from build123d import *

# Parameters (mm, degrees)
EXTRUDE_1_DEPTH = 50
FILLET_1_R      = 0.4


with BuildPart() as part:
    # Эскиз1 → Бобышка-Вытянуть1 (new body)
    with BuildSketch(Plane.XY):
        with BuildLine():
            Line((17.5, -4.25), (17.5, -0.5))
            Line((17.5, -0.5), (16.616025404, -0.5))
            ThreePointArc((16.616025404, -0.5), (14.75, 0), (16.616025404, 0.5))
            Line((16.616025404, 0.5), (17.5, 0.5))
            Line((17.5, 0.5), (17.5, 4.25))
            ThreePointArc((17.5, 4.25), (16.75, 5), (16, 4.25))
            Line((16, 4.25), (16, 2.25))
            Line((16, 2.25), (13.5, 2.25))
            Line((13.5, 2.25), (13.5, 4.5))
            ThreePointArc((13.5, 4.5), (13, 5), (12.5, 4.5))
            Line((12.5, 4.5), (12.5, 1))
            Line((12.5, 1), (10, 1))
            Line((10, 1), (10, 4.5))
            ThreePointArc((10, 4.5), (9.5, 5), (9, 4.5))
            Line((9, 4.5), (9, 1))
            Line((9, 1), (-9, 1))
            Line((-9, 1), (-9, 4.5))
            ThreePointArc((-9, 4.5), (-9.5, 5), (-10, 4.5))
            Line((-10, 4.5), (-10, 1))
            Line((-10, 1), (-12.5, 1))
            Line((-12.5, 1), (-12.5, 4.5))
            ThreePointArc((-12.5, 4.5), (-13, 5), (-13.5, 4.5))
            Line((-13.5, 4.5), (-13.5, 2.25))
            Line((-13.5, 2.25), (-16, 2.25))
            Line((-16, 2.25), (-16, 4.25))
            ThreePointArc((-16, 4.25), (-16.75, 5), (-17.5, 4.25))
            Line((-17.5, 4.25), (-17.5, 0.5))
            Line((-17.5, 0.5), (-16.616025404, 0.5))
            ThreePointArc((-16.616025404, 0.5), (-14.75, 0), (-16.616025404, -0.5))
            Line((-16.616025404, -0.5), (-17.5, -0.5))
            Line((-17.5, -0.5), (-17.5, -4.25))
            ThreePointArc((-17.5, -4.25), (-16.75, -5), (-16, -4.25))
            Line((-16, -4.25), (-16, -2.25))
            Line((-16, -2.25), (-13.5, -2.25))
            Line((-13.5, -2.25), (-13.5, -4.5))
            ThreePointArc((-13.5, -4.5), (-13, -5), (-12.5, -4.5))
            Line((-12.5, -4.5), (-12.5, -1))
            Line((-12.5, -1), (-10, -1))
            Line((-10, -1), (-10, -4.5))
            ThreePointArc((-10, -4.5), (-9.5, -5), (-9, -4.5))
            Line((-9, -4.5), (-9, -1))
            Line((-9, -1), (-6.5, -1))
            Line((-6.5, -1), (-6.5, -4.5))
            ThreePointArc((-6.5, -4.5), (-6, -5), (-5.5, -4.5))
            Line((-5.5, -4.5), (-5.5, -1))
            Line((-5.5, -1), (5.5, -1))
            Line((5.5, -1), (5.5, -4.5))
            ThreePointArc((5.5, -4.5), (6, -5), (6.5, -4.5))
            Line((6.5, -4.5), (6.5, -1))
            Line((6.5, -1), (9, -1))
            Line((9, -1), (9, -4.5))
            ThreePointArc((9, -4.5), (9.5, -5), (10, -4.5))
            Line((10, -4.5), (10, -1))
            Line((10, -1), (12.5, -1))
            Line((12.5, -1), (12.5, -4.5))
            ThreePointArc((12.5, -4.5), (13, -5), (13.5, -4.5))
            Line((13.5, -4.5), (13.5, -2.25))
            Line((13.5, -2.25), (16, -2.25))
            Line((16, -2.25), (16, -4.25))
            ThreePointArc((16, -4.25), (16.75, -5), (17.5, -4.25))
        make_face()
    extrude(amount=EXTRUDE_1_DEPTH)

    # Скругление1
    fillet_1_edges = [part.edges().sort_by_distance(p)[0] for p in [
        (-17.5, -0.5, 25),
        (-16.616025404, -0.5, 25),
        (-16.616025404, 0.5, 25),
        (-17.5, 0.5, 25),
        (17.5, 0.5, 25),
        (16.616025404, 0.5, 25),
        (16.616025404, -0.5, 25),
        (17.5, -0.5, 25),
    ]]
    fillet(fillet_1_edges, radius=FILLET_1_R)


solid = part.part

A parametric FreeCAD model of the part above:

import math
import FreeCAD as App
import Part
import Sketcher


def edges_at(feature, points):
    """Names of the edges that pass closest to the given points."""
    edges = feature.Shape.Edges
    near = lambda p: min(range(len(edges)), key=lambda i: edges[i].distToShape(Part.Vertex(*p))[0])
    return sorted({f"Edge{near(p) + 1}" for p in points})

doc = App.newDocument("Part")
body = doc.addObject("PartDesign::Body", "Body")

# Sketch on XY plane
sketch1 = body.newObject("Sketcher::SketchObject", "Sketch")
sketch1.AttachmentSupport = (doc.getObject("XY_Plane"), [""])
sketch1.MapMode = "FlatFace"
sketch1.addGeometry([
    Part.LineSegment(App.Vector(17.5, -4.2, 0), App.Vector(17.5, -0.5, 0)),  # 0
    Part.LineSegment(App.Vector(17.5, -0.5, 0), App.Vector(16.6, -0.5, 0)),  # 1
    Part.ArcOfCircle(Part.Circle(App.Vector(15.8, 0, 0), App.Vector(0, 0, 1), 1), math.radians(30), math.radians(330)),  # 2
    Part.LineSegment(App.Vector(16.6, 0.5, 0), App.Vector(17.5, 0.5, 0)),  # 3
    Part.LineSegment(App.Vector(17.5, 0.5, 0), App.Vector(17.5, 4.2, 0)),  # 4
    Part.ArcOfCircle(Part.Circle(App.Vector(16.8, 4.2, 0), App.Vector(0, 0, 1), 0.8), math.radians(0), math.radians(180)),  # 5
    Part.LineSegment(App.Vector(16, 4.2, 0), App.Vector(16, 2.2, 0)),  # 6
    Part.LineSegment(App.Vector(16, 2.2, 0), App.Vector(13.5, 2.2, 0)),  # 7
    Part.LineSegment(App.Vector(13.5, 2.2, 0), App.Vector(13.5, 4.5, 0)),  # 8
    Part.ArcOfCircle(Part.Circle(App.Vector(13, 4.5, 0), App.Vector(0, 0, 1), 0.5), math.radians(0), math.radians(180)),  # 9
    Part.LineSegment(App.Vector(12.5, 4.5, 0), App.Vector(12.5, 1, 0)),  # 10
    Part.LineSegment(App.Vector(12.5, 1, 0), App.Vector(10, 1, 0)),  # 11
    Part.LineSegment(App.Vector(10, 1, 0), App.Vector(10, 4.5, 0)),  # 12
    Part.ArcOfCircle(Part.Circle(App.Vector(9.5, 4.5, 0), App.Vector(0, 0, 1), 0.5), math.radians(0), math.radians(180)),  # 13
    Part.LineSegment(App.Vector(9, 4.5, 0), App.Vector(9, 1, 0)),  # 14
    Part.LineSegment(App.Vector(9, 1, 0), App.Vector(-9, 1, 0)),  # 15
    Part.LineSegment(App.Vector(-9, 1, 0), App.Vector(-9, 4.5, 0)),  # 16
    Part.ArcOfCircle(Part.Circle(App.Vector(-9.5, 4.5, 0), App.Vector(0, 0, 1), 0.5), math.radians(0), math.radians(180)),  # 17
    Part.LineSegment(App.Vector(-10, 4.5, 0), App.Vector(-10, 1, 0)),  # 18
    Part.LineSegment(App.Vector(-10, 1, 0), App.Vector(-12.5, 1, 0)),  # 19
    Part.LineSegment(App.Vector(-12.5, 1, 0), App.Vector(-12.5, 4.5, 0)),  # 20
    Part.ArcOfCircle(Part.Circle(App.Vector(-13, 4.5, 0), App.Vector(0, 0, 1), 0.5), math.radians(0), math.radians(180)),  # 21
    Part.LineSegment(App.Vector(-13.5, 4.5, 0), App.Vector(-13.5, 2.2, 0)),  # 22
    Part.LineSegment(App.Vector(-13.5, 2.2, 0), App.Vector(-16, 2.2, 0)),  # 23
    Part.LineSegment(App.Vector(-16, 2.2, 0), App.Vector(-16, 4.2, 0)),  # 24
    Part.ArcOfCircle(Part.Circle(App.Vector(-16.8, 4.2, 0), App.Vector(0, 0, 1), 0.8), math.radians(0), math.radians(180)),  # 25
    Part.LineSegment(App.Vector(-17.5, 4.2, 0), App.Vector(-17.5, 0.5, 0)),  # 26
    Part.LineSegment(App.Vector(-17.5, 0.5, 0), App.Vector(-16.6, 0.5, 0)),  # 27
    Part.ArcOfCircle(Part.Circle(App.Vector(-15.8, 0, 0), App.Vector(0, 0, 1), 1), math.radians(-150), math.radians(150)),  # 28
    Part.LineSegment(App.Vector(-16.6, -0.5, 0), App.Vector(-17.5, -0.5, 0)),  # 29
    Part.LineSegment(App.Vector(-17.5, -0.5, 0), App.Vector(-17.5, -4.2, 0)),  # 30
    Part.ArcOfCircle(Part.Circle(App.Vector(-16.8, -4.2, 0), App.Vector(0, 0, 1), 0.8), math.radians(180), math.radians(360)),  # 31
    Part.LineSegment(App.Vector(-16, -4.2, 0), App.Vector(-16, -2.2, 0)),  # 32
    Part.LineSegment(App.Vector(-16, -2.2, 0), App.Vector(-13.5, -2.2, 0)),  # 33
    Part.LineSegment(App.Vector(-13.5, -2.2, 0), App.Vector(-13.5, -4.5, 0)),  # 34
    Part.ArcOfCircle(Part.Circle(App.Vector(-13, -4.5, 0), App.Vector(0, 0, 1), 0.5), math.radians(180), math.radians(360)),  # 35
    Part.LineSegment(App.Vector(-12.5, -4.5, 0), App.Vector(-12.5, -1, 0)),  # 36
    Part.LineSegment(App.Vector(-12.5, -1, 0), App.Vector(-10, -1, 0)),  # 37
    Part.LineSegment(App.Vector(-10, -1, 0), App.Vector(-10, -4.5, 0)),  # 38
    Part.ArcOfCircle(Part.Circle(App.Vector(-9.5, -4.5, 0), App.Vector(0, 0, 1), 0.5), math.radians(180), math.radians(360)),  # 39
    Part.LineSegment(App.Vector(-9, -4.5, 0), App.Vector(-9, -1, 0)),  # 40
    Part.LineSegment(App.Vector(-9, -1, 0), App.Vector(-6.5, -1, 0)),  # 41
    Part.LineSegment(App.Vector(-6.5, -1, 0), App.Vector(-6.5, -4.5, 0)),  # 42
    Part.ArcOfCircle(Part.Circle(App.Vector(-6, -4.5, 0), App.Vector(0, 0, 1), 0.5), math.radians(180), math.radians(360)),  # 43
    Part.LineSegment(App.Vector(-5.5, -4.5, 0), App.Vector(-5.5, -1, 0)),  # 44
    Part.LineSegment(App.Vector(-5.5, -1, 0), App.Vector(5.5, -1, 0)),  # 45
    Part.LineSegment(App.Vector(5.5, -1, 0), App.Vector(5.5, -4.5, 0)),  # 46
    Part.ArcOfCircle(Part.Circle(App.Vector(6, -4.5, 0), App.Vector(0, 0, 1), 0.5), math.radians(180), math.radians(360)),  # 47
    Part.LineSegment(App.Vector(6.5, -4.5, 0), App.Vector(6.5, -1, 0)),  # 48
    Part.LineSegment(App.Vector(6.5, -1, 0), App.Vector(9, -1, 0)),  # 49
    Part.LineSegment(App.Vector(9, -1, 0), App.Vector(9, -4.5, 0)),  # 50
    Part.ArcOfCircle(Part.Circle(App.Vector(9.5, -4.5, 0), App.Vector(0, 0, 1), 0.5), math.radians(180), math.radians(360)),  # 51
    Part.LineSegment(App.Vector(10, -4.5, 0), App.Vector(10, -1, 0)),  # 52
    Part.LineSegment(App.Vector(10, -1, 0), App.Vector(12.5, -1, 0)),  # 53
    Part.LineSegment(App.Vector(12.5, -1, 0), App.Vector(12.5, -4.5, 0)),  # 54
    Part.ArcOfCircle(Part.Circle(App.Vector(13, -4.5, 0), App.Vector(0, 0, 1), 0.5), math.radians(180), math.radians(360)),  # 55
    Part.LineSegment(App.Vector(13.5, -4.5, 0), App.Vector(13.5, -2.2, 0)),  # 56
    Part.LineSegment(App.Vector(13.5, -2.2, 0), App.Vector(16, -2.2, 0)),  # 57
    Part.LineSegment(App.Vector(16, -2.2, 0), App.Vector(16, -4.2, 0)),  # 58
    Part.ArcOfCircle(Part.Circle(App.Vector(16.8, -4.2, 0), App.Vector(0, 0, 1), 0.8), math.radians(180), math.radians(360)),  # 59
], False)
sketch1.addConstraint([
    Sketcher.Constraint("Coincident", 0, 2, 1, 1),
    Sketcher.Constraint("Coincident", 1, 2, 2, 2),
    Sketcher.Constraint("Coincident", 2, 1, 3, 1),
    Sketcher.Constraint("Coincident", 3, 2, 4, 1),
    Sketcher.Constraint("Tangent", 4, 2, 5, 1),
    Sketcher.Constraint("Tangent", 5, 2, 6, 1),
    Sketcher.Constraint("Coincident", 6, 2, 7, 1),
    Sketcher.Constraint("Coincident", 7, 2, 8, 1),
    Sketcher.Constraint("Tangent", 8, 2, 9, 1),
    Sketcher.Constraint("Tangent", 9, 2, 10, 1),
    Sketcher.Constraint("Coincident", 10, 2, 11, 1),
    Sketcher.Constraint("Coincident", 11, 2, 12, 1),
    Sketcher.Constraint("Tangent", 12, 2, 13, 1),
    Sketcher.Constraint("Tangent", 13, 2, 14, 1),
    Sketcher.Constraint("Coincident", 14, 2, 15, 1),
    Sketcher.Constraint("Coincident", 15, 2, 16, 1),
    Sketcher.Constraint("Tangent", 16, 2, 17, 1),
    Sketcher.Constraint("Tangent", 17, 2, 18, 1),
    Sketcher.Constraint("Coincident", 18, 2, 19, 1),
    Sketcher.Constraint("Coincident", 19, 2, 20, 1),
    Sketcher.Constraint("Tangent", 20, 2, 21, 1),
    Sketcher.Constraint("Tangent", 21, 2, 22, 1),
    Sketcher.Constraint("Coincident", 22, 2, 23, 1),
    Sketcher.Constraint("Coincident", 23, 2, 24, 1),
    Sketcher.Constraint("Tangent", 24, 2, 25, 1),
    Sketcher.Constraint("Tangent", 25, 2, 26, 1),
    Sketcher.Constraint("Coincident", 26, 2, 27, 1),
    Sketcher.Constraint("Coincident", 27, 2, 28, 2),
    Sketcher.Constraint("Coincident", 28, 1, 29, 1),
    Sketcher.Constraint("Coincident", 29, 2, 30, 1),
    Sketcher.Constraint("Tangent", 30, 2, 31, 1),
    Sketcher.Constraint("Tangent", 31, 2, 32, 1),
    Sketcher.Constraint("Coincident", 32, 2, 33, 1),
    Sketcher.Constraint("Coincident", 33, 2, 34, 1),
    Sketcher.Constraint("Tangent", 34, 2, 35, 1),
    Sketcher.Constraint("Tangent", 35, 2, 36, 1),
    Sketcher.Constraint("Coincident", 36, 2, 37, 1),
    Sketcher.Constraint("Coincident", 37, 2, 38, 1),
    Sketcher.Constraint("Tangent", 38, 2, 39, 1),
    Sketcher.Constraint("Tangent", 39, 2, 40, 1),
    Sketcher.Constraint("Coincident", 40, 2, 41, 1),
    Sketcher.Constraint("Coincident", 41, 2, 42, 1),
    Sketcher.Constraint("Tangent", 42, 2, 43, 1),
    Sketcher.Constraint("Tangent", 43, 2, 44, 1),
    Sketcher.Constraint("Coincident", 44, 2, 45, 1),
    Sketcher.Constraint("Coincident", 45, 2, 46, 1),
    Sketcher.Constraint("Tangent", 46, 2, 47, 1),
    Sketcher.Constraint("Tangent", 47, 2, 48, 1),
    Sketcher.Constraint("Coincident", 48, 2, 49, 1),
    Sketcher.Constraint("Coincident", 49, 2, 50, 1),
    Sketcher.Constraint("Tangent", 50, 2, 51, 1),
    Sketcher.Constraint("Tangent", 51, 2, 52, 1),
    Sketcher.Constraint("Coincident", 52, 2, 53, 1),
    Sketcher.Constraint("Coincident", 53, 2, 54, 1),
    Sketcher.Constraint("Tangent", 54, 2, 55, 1),
    Sketcher.Constraint("Tangent", 55, 2, 56, 1),
    Sketcher.Constraint("Coincident", 56, 2, 57, 1),
    Sketcher.Constraint("Coincident", 57, 2, 58, 1),
    Sketcher.Constraint("Tangent", 58, 2, 59, 1),
    Sketcher.Constraint("Tangent", 59, 2, 0, 1),
    Sketcher.Constraint("Vertical", 0),
    Sketcher.Constraint("Horizontal", 1),
    Sketcher.Constraint("Horizontal", 3),
    Sketcher.Constraint("Vertical", 4),
    Sketcher.Constraint("Vertical", 6),
    Sketcher.Constraint("Horizontal", 7),
    Sketcher.Constraint("Vertical", 8),
    Sketcher.Constraint("Vertical", 10),
    Sketcher.Constraint("Horizontal", 11),
    Sketcher.Constraint("Vertical", 12),
    Sketcher.Constraint("Vertical", 14),
    Sketcher.Constraint("Horizontal", 15),
    Sketcher.Constraint("Vertical", 16),
    Sketcher.Constraint("Vertical", 18),
    Sketcher.Constraint("Horizontal", 19),
    Sketcher.Constraint("Vertical", 20),
    Sketcher.Constraint("Vertical", 22),
    Sketcher.Constraint("Horizontal", 23),
    Sketcher.Constraint("Vertical", 24),
    Sketcher.Constraint("Vertical", 26),
    Sketcher.Constraint("Horizontal", 27),
    Sketcher.Constraint("Horizontal", 29),
    Sketcher.Constraint("Vertical", 30),
    Sketcher.Constraint("Vertical", 32),
    Sketcher.Constraint("Horizontal", 33),
    Sketcher.Constraint("Vertical", 34),
    Sketcher.Constraint("Vertical", 36),
    Sketcher.Constraint("Horizontal", 37),
    Sketcher.Constraint("Vertical", 38),
    Sketcher.Constraint("Vertical", 40),
    Sketcher.Constraint("Horizontal", 41),
    Sketcher.Constraint("Vertical", 42),
    Sketcher.Constraint("Vertical", 44),
    Sketcher.Constraint("Horizontal", 45),
    Sketcher.Constraint("Vertical", 46),
    Sketcher.Constraint("Vertical", 48),
    Sketcher.Constraint("Horizontal", 49),
    Sketcher.Constraint("Vertical", 50),
    Sketcher.Constraint("Vertical", 52),
    Sketcher.Constraint("Horizontal", 53),
    Sketcher.Constraint("Vertical", 54),
    Sketcher.Constraint("Vertical", 56),
    Sketcher.Constraint("Horizontal", 57),
    Sketcher.Constraint("Vertical", 58),
    Sketcher.Constraint("Equal", 9, 13),
    Sketcher.Constraint("Equal", 13, 17),
    Sketcher.Constraint("Equal", 17, 21),
    Sketcher.Constraint("Equal", 5, 25),
    Sketcher.Constraint("Equal", 2, 28),
    Sketcher.Constraint("Equal", 25, 31),
    Sketcher.Constraint("Equal", 21, 35),
    Sketcher.Constraint("Equal", 35, 39),
    Sketcher.Constraint("Equal", 39, 43),
    Sketcher.Constraint("Equal", 43, 47),
    Sketcher.Constraint("Equal", 47, 51),
    Sketcher.Constraint("Equal", 51, 55),
    Sketcher.Constraint("Equal", 31, 59),
    Sketcher.Constraint("Symmetric", 2, 3, 28, 3, -1, 1),
    Sketcher.Constraint("Symmetric", 5, 3, 31, 3, -1, 1),
    Sketcher.Constraint("Symmetric", 9, 3, 35, 3, -1, 1),
    Sketcher.Constraint("Symmetric", 13, 3, 39, 3, -1, 1),
    Sketcher.Constraint("Symmetric", 17, 3, 51, 3, -1, 1),
    Sketcher.Constraint("Symmetric", 21, 3, 55, 3, -1, 1),
    Sketcher.Constraint("Symmetric", 25, 3, 59, 3, -1, 1),
    Sketcher.Constraint("Symmetric", 13, 3, 17, 3, -2),
    Sketcher.Constraint("Symmetric", 9, 3, 21, 3, -2),
    Sketcher.Constraint("Symmetric", 5, 3, 25, 3, -2),
    Sketcher.Constraint("Symmetric", 43, 3, 47, 3, -2),
    Sketcher.Constraint("Symmetric", 2, 1, 27, 2, -2),
    Sketcher.Constraint("Horizontal", 9, 3, 13, 3),
    Sketcher.Constraint("Horizontal", 39, 3, 43, 3),
    Sketcher.Constraint("Horizontal", 11, 2, 14, 2),
    Sketcher.Constraint("Horizontal", 15, 2, 18, 2),
    Sketcher.Constraint("Horizontal", 7, 2, 22, 2),
    Sketcher.Constraint("Horizontal", 1, 2, 28, 1),
    Sketcher.Constraint("Horizontal", 37, 2, 40, 2),
    Sketcher.Constraint("Horizontal", 41, 2, 44, 2),
    Sketcher.Constraint("Horizontal", 45, 2, 48, 2),
    Sketcher.Constraint("Horizontal", 49, 2, 52, 2),
    Sketcher.Constraint("Horizontal", 33, 2, 56, 2),
    Sketcher.Constraint("Vertical", 1, 2, 2, 1),
    Sketcher.Constraint("Equal", 7, 11),
    Sketcher.Constraint("Equal", 37, 41),
    Sketcher.Constraint("Equal", 24, 32),
    Sketcher.Constraint("Equal", 20, 36),
    Sketcher.Constraint("Radius", 2, 1.0),
    Sketcher.Constraint("Radius", 9, 0.5),
    Sketcher.Constraint("DistanceX", 15, 2, 15, 1, 18.0),
    Sketcher.Constraint("DistanceX", 45, 1, 45, 2, 11.0),
    Sketcher.Constraint("DistanceY", 6, 2, 6, 1, 2.0),
    Sketcher.Constraint("Radius", 5, 0.75),
    Sketcher.Constraint("DistanceY", 10, 2, 10, 1, 3.5),
    Sketcher.Constraint("DistanceY", -1, 1, 10, 2, 1.0),
    Sketcher.Constraint("DistanceY", 0, 1, 0, 2, 3.75),
    Sketcher.Constraint("DistanceY", 8, 1, 8, 2, 2.25),
    Sketcher.Constraint("DistanceX", -1, 1, 2, 3, 15.75),
])
pad1 = body.newObject("PartDesign::Pad", "Pad")
pad1.Profile = sketch1
pad1.Length = 50
doc.recompute()

fillet = body.newObject("PartDesign::Fillet", "Fillet")
fillet.Base = (pad1, edges_at(pad1, [
    (-17.5, -0.5, 25),
    (-16.616, -0.5, 25),
    (-16.616, 0.5, 25),
    (-17.5, 0.5, 25),
    (17.5, 0.5, 25),
    (16.616, 0.5, 25),
    (16.616, -0.5, 25),
    (17.5, -0.5, 25),
]))
fillet.Radius = 0.4

doc.recompute()
